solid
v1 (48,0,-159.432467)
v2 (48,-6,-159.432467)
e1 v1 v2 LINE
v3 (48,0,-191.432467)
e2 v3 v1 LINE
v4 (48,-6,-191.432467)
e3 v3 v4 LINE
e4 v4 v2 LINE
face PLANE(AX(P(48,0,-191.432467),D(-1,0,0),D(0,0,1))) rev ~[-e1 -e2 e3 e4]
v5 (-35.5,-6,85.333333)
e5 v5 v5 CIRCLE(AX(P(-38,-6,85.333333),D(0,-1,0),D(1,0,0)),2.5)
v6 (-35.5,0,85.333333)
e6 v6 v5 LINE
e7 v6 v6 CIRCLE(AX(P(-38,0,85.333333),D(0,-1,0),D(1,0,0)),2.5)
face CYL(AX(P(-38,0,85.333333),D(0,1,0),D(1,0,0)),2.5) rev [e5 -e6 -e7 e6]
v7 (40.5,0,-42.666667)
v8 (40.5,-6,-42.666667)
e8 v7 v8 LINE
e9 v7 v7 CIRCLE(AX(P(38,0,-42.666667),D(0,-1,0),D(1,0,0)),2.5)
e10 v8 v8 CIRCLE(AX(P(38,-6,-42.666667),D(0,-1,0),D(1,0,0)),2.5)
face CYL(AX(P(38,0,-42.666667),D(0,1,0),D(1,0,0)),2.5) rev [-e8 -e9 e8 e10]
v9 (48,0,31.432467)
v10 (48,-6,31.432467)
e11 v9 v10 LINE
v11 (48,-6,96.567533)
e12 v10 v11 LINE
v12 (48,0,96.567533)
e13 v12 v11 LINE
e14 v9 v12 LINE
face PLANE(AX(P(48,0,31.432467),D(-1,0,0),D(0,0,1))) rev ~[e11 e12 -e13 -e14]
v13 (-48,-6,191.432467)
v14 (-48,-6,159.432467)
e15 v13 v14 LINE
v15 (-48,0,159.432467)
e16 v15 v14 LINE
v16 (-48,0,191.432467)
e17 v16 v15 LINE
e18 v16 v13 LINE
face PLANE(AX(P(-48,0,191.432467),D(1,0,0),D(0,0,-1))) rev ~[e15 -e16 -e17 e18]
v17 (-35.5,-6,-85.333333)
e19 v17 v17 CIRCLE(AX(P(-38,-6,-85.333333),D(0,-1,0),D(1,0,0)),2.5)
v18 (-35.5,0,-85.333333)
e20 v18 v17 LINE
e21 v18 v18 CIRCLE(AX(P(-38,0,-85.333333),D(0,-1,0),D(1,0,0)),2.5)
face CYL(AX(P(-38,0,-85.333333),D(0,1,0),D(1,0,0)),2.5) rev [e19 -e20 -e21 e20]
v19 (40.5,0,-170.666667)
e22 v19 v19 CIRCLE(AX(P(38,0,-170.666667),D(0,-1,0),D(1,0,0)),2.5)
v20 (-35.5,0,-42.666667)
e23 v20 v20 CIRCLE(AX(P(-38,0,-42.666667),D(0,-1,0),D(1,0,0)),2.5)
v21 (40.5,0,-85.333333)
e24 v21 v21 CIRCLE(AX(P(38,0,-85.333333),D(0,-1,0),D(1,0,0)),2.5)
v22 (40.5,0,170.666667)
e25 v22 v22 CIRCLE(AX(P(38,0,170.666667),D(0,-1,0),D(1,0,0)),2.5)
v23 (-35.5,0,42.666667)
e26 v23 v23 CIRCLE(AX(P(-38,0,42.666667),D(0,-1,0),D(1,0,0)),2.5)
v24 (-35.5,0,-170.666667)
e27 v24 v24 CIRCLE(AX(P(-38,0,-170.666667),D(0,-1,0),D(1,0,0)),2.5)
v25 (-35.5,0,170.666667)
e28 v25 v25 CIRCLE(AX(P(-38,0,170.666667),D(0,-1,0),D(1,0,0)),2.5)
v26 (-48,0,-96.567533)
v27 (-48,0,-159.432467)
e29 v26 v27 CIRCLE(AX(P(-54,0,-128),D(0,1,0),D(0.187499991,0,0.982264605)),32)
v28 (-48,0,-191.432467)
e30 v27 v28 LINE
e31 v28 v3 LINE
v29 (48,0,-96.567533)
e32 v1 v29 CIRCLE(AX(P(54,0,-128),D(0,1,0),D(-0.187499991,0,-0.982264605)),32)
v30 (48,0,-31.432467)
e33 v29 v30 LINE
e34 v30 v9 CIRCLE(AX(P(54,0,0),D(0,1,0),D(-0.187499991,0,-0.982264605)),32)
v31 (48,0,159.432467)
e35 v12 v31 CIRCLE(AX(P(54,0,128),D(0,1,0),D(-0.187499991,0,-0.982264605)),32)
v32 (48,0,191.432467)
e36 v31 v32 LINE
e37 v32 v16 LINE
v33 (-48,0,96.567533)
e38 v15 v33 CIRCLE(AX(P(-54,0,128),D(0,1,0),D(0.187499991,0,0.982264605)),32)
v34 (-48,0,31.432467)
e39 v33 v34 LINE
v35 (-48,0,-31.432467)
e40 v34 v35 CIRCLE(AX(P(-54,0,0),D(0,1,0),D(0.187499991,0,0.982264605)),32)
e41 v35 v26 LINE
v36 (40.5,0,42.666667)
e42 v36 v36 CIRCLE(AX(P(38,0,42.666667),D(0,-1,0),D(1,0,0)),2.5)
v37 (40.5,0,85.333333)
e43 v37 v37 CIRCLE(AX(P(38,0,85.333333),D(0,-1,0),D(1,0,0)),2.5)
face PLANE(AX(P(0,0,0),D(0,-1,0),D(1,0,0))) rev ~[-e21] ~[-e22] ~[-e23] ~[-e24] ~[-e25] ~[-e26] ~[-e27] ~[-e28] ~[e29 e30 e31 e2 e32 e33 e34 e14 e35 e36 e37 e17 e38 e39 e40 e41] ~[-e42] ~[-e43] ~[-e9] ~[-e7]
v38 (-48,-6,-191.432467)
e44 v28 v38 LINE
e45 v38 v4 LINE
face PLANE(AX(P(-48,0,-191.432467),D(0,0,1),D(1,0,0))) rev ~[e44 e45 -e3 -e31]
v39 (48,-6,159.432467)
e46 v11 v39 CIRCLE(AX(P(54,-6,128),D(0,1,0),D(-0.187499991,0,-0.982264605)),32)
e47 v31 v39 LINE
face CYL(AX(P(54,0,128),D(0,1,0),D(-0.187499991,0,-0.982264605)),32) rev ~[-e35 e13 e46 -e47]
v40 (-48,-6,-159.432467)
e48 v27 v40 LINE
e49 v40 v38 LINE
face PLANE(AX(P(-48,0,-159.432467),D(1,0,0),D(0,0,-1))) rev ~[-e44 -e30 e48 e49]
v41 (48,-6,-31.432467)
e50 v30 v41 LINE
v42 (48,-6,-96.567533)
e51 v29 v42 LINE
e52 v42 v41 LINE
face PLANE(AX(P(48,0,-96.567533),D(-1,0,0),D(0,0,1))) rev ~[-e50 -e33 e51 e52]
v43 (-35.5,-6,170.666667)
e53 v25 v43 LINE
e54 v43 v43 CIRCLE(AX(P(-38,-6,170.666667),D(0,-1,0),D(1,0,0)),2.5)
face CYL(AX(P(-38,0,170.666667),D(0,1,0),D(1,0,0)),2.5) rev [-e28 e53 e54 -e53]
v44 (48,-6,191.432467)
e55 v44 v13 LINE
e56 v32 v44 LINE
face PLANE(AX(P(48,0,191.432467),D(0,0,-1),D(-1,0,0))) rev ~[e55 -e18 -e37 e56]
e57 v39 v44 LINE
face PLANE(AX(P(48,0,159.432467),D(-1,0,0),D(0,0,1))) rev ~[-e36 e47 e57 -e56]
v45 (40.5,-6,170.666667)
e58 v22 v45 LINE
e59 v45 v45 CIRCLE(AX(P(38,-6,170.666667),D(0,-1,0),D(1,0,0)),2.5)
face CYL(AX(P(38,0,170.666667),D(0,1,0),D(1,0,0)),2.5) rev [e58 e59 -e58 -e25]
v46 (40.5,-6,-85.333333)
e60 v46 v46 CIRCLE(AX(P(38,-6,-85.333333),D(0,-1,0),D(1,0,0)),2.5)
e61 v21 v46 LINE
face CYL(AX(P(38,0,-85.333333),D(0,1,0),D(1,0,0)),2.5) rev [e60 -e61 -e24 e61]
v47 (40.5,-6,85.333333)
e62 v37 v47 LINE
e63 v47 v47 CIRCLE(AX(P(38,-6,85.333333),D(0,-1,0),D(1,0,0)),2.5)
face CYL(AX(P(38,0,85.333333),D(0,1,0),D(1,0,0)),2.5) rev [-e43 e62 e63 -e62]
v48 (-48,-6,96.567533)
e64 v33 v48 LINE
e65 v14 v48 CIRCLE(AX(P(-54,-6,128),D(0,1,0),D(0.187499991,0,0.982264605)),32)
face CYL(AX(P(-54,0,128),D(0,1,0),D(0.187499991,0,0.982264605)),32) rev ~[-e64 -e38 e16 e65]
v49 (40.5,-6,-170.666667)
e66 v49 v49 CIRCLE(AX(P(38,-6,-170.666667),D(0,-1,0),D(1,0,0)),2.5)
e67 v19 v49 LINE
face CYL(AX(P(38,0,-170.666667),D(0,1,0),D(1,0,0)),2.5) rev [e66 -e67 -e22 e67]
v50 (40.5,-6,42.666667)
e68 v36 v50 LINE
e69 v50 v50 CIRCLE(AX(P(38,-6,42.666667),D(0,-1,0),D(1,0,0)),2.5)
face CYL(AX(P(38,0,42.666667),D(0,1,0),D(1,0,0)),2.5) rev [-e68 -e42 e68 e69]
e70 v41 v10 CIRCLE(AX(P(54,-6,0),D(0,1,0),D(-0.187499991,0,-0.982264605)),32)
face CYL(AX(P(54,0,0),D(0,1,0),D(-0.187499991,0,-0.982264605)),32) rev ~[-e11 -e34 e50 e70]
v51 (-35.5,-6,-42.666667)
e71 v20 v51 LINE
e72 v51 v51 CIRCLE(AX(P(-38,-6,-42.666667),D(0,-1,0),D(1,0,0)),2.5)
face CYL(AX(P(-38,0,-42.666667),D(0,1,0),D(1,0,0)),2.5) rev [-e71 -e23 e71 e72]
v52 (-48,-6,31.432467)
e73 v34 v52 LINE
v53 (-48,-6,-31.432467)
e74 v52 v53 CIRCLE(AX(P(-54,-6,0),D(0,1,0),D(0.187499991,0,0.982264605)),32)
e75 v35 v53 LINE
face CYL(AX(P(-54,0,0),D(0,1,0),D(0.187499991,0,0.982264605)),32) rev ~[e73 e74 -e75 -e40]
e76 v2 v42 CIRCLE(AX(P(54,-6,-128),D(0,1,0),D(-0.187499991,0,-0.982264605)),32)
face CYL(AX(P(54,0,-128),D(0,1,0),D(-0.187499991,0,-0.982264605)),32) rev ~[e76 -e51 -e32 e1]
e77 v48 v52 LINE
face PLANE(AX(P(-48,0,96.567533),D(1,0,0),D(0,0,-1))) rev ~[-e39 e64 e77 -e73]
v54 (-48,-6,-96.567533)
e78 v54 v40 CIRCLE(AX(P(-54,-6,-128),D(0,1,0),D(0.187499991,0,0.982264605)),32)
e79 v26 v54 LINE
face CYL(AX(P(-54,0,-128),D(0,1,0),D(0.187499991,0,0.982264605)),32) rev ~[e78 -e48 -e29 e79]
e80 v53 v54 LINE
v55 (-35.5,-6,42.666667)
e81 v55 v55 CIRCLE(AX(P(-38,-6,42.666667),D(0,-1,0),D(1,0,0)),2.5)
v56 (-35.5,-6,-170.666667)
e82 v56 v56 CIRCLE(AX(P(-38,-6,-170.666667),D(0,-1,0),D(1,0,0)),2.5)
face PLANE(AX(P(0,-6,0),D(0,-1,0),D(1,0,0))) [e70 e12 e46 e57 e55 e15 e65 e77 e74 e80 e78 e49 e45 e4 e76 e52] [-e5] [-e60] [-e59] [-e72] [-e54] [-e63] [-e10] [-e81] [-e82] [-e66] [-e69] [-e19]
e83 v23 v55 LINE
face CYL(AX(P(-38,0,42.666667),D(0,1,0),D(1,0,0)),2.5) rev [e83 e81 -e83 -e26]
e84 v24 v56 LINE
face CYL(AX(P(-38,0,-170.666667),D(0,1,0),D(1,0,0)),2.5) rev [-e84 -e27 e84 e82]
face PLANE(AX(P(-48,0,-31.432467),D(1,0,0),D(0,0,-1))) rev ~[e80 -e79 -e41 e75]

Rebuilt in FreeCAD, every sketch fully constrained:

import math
import FreeCAD as App
import Part
import Sketcher

V = App.Vector

doc = App.newDocument("Part")
body = doc.addObject("PartDesign::Body", "Body")

# Sketch on XZ plane
sketch1 = body.newObject("Sketcher::SketchObject", "Sketch")
sketch1.AttachmentSupport = (doc.getObject("XZ_Plane"), [""])
sketch1.MapMode = "FlatFace"
sketch1.addGeometry(Part.ArcOfCircle(Part.Circle(V(-54, -128, 0), V(0, 0, 1), 32), math.radians(-79), math.radians(79)), False)
sketch1.addGeometry(Part.LineSegment(V(-48, -159.4, 0), V(-48, -191.4, 0)), False)
sketch1.addGeometry(Part.LineSegment(V(-48, -191.4, 0), V(48, -191.4, 0)), False)
sketch1.addGeometry(Part.LineSegment(V(48, -191.4, 0), V(48, -159.4, 0)), False)
sketch1.addGeometry(Part.ArcOfCircle(Part.Circle(V(54, -128, 0), V(0, 0, 1), 32), math.radians(101), math.radians(259)), False)
sketch1.addGeometry(Part.LineSegment(V(48, -96.6, 0), V(48, -31.4, 0)), False)
sketch1.addGeometry(Part.ArcOfCircle(Part.Circle(V(54, 0, 0), V(0, 0, 1), 32), math.radians(101), math.radians(259)), False)
sketch1.addGeometry(Part.LineSegment(V(48, 31.4, 0), V(48, 96.6, 0)), False)
sketch1.addGeometry(Part.ArcOfCircle(Part.Circle(V(54, 128, 0), V(0, 0, 1), 32), math.radians(101), math.radians(259)), False)
sketch1.addGeometry(Part.LineSegment(V(48, 159.4, 0), V(48, 191.4, 0)), False)
sketch1.addGeometry(Part.LineSegment(V(48, 191.4, 0), V(-48, 191.4, 0)), False)
sketch1.addGeometry(Part.LineSegment(V(-48, 191.4, 0), V(-48, 159.4, 0)), False)
sketch1.addGeometry(Part.ArcOfCircle(Part.Circle(V(-54, 128, 0), V(0, 0, 1), 32), math.radians(-79), math.radians(79)), False)
sketch1.addGeometry(Part.LineSegment(V(-48, 96.6, 0), V(-48, 31.4, 0)), False)
sketch1.addGeometry(Part.ArcOfCircle(Part.Circle(V(-54, 0, 0), V(0, 0, 1), 32), math.radians(-79), math.radians(79)), False)
sketch1.addGeometry(Part.LineSegment(V(-48, -31.4, 0), V(-48, -96.6, 0)), False)
sketch1.addGeometry(Part.Circle(V(-38, -170.7, 0), V(0, 0, 1), 2.5), False)
sketch1.addGeometry(Part.Circle(V(-38, -85.3, 0), V(0, 0, 1), 2.5), False)
sketch1.addGeometry(Part.Circle(V(-38, -42.7, 0), V(0, 0, 1), 2.5), False)
sketch1.addGeometry(Part.Circle(V(38, -170.7, 0), V(0, 0, 1), 2.5), False)
sketch1.addGeometry(Part.Circle(V(38, -85.3, 0), V(0, 0, 1), 2.5), False)
sketch1.addGeometry(Part.Circle(V(38, -42.7, 0), V(0, 0, 1), 2.5), False)
sketch1.addGeometry(Part.Circle(V(-38, 42.7, 0), V(0, 0, 1), 2.5), False)
sketch1.addGeometry(Part.Circle(V(-38, 85.3, 0), V(0, 0, 1), 2.5), False)
sketch1.addGeometry(Part.Circle(V(-38, 170.7, 0), V(0, 0, 1), 2.5), False)
sketch1.addGeometry(Part.Circle(V(38, 42.7, 0), V(0, 0, 1), 2.5), False)
sketch1.addGeometry(Part.Circle(V(38, 85.3, 0), V(0, 0, 1), 2.5), False)
sketch1.addGeometry(Part.Circle(V(38, 170.7, 0), V(0, 0, 1), 2.5), False)
sketch1.addConstraint(Sketcher.Constraint("Coincident", 0, 1, 1, 1))
sketch1.addConstraint(Sketcher.Constraint("Coincident", 1, 2, 2, 1))
sketch1.addConstraint(Sketcher.Constraint("Coincident", 2, 2, 3, 1))
sketch1.addConstraint(Sketcher.Constraint("Coincident", 3, 2, 4, 2))
sketch1.addConstraint(Sketcher.Constraint("Coincident", 4, 1, 5, 1))
sketch1.addConstraint(Sketcher.Constraint("Coincident", 5, 2, 6, 2))
sketch1.addConstraint(Sketcher.Constraint("Coincident", 6, 1, 7, 1))
sketch1.addConstraint(Sketcher.Constraint("Coincident", 7, 2, 8, 2))
sketch1.addConstraint(Sketcher.Constraint("Coincident", 8, 1, 9, 1))
sketch1.addConstraint(Sketcher.Constraint("Coincident", 9, 2, 10, 1))
sketch1.addConstraint(Sketcher.Constraint("Coincident", 10, 2, 11, 1))
sketch1.addConstraint(Sketcher.Constraint("Coincident", 11, 2, 12, 2))
sketch1.addConstraint(Sketcher.Constraint("Coincident", 12, 1, 13, 1))
sketch1.addConstraint(Sketcher.Constraint("Coincident", 13, 2, 14, 2))
sketch1.addConstraint(Sketcher.Constraint("Coincident", 14, 1, 15, 1))
sketch1.addConstraint(Sketcher.Constraint("Coincident", 15, 2, 0, 2))
sketch1.addConstraint(Sketcher.Constraint("Vertical", 1))
sketch1.addConstraint(Sketcher.Constraint("Horizontal", 2))
sketch1.addConstraint(Sketcher.Constraint("Vertical", 3))
sketch1.addConstraint(Sketcher.Constraint("Vertical", 5))
sketch1.addConstraint(Sketcher.Constraint("Vertical", 7))
sketch1.addConstraint(Sketcher.Constraint("Vertical", 9))
sketch1.addConstraint(Sketcher.Constraint("Horizontal", 10))
sketch1.addConstraint(Sketcher.Constraint("Vertical", 11))
sketch1.addConstraint(Sketcher.Constraint("Vertical", 13))
sketch1.addConstraint(Sketcher.Constraint("Vertical", 15))
sketch1.addConstraint(Sketcher.Constraint("Equal", 0, 4))
sketch1.addConstraint(Sketcher.Constraint("Equal", 4, 6))
sketch1.addConstraint(Sketcher.Constraint("Equal", 6, 8))
sketch1.addConstraint(Sketcher.Constraint("Equal", 8, 12))
sketch1.addConstraint(Sketcher.Constraint("Equal", 12, 14))
sketch1.addConstraint(Sketcher.Constraint("Equal", 16, 17))
sketch1.addConstraint(Sketcher.Constraint("Equal", 17, 18))
sketch1.addConstraint(Sketcher.Constraint("Equal", 18, 19))
sketch1.addConstraint(Sketcher.Constraint("Equal", 19, 20))
sketch1.addConstraint(Sketcher.Constraint("Equal", 20, 21))
sketch1.addConstraint(Sketcher.Constraint("Equal", 21, 22))
sketch1.addConstraint(Sketcher.Constraint("Equal", 22, 23))
sketch1.addConstraint(Sketcher.Constraint("Equal", 23, 24))
sketch1.addConstraint(Sketcher.Constraint("Equal", 24, 25))
sketch1.addConstraint(Sketcher.Constraint("Equal", 25, 26))
sketch1.addConstraint(Sketcher.Constraint("Equal", 26, 27))
sketch1.addConstraint(Sketcher.Constraint("Symmetric", 0, 3, 8, 3, -1, 1))
sketch1.addConstraint(Sketcher.Constraint("Symmetric", 4, 3, 12, 3, -1, 1))
sketch1.addConstraint(Sketcher.Constraint("Symmetric", 6, 3, 14, 3, -1, 1))
sketch1.addConstraint(Sketcher.Constraint("Symmetric", 21, 3, 22, 3, -1, 1))
sketch1.addConstraint(Sketcher.Constraint("Symmetric", 20, 3, 23, 3, -1, 1))
sketch1.addConstraint(Sketcher.Constraint("Symmetric", 19, 3, 24, 3, -1, 1))
sketch1.addConstraint(Sketcher.Constraint("Symmetric", 18, 3, 25, 3, -1, 1))
sketch1.addConstraint(Sketcher.Constraint("Symmetric", 17, 3, 26, 3, -1, 1))
sketch1.addConstraint(Sketcher.Constraint("Symmetric", 16, 3, 27, 3, -1, 1))
sketch1.addConstraint(Sketcher.Constraint("Symmetric", 1, 2, 9, 2, -1, 1))
sketch1.addConstraint(Sketcher.Constraint("Symmetric", 0, 3, 4, 3, -2))
sketch1.addConstraint(Sketcher.Constraint("Symmetric", 16, 3, 19, 3, -2))
sketch1.addConstraint(Sketcher.Constraint("Symmetric", 17, 3, 20, 3, -2))
sketch1.addConstraint(Sketcher.Constraint("Symmetric", 18, 3, 21, 3, -2))
sketch1.addConstraint(Sketcher.Constraint("Symmetric", 6, 1, 13, 2, -2))
sketch1.addConstraint(Sketcher.Constraint("Horizontal", 0, 1, 3, 2))
sketch1.addConstraint(Sketcher.Constraint("Horizontal", 8, 1, 11, 2))
sketch1.addConstraint(Sketcher.Constraint("Horizontal", 5, 2, 14, 1))
sketch1.addConstraint(Sketcher.Constraint("Vertical", 4, 3, 6, 3))
sketch1.addConstraint(Sketcher.Constraint("Vertical", 16, 3, 17, 3))
sketch1.addConstraint(Sketcher.Constraint("Vertical", 17, 3, 18, 3))
sketch1.addConstraint(Sketcher.Constraint("Vertical", 3, 2, 4, 1))
sketch1.addConstraint(Sketcher.Constraint("Vertical", 5, 2, 6, 1))
sketch1.addConstraint(Sketcher.Constraint("Diameter", 16, 5.0))
sketch1.addConstraint(Sketcher.Constraint("Radius", 0, 32.0))
sketch1.addConstraint(Sketcher.Constraint("DistanceX", 2, 1, 2, 2, 96.0))
sketch1.addConstraint(Sketcher.Constraint("DistanceY", 1, 2, 1, 1, 32.0))
sketch1.addConstraint(Sketcher.Constraint("DistanceX", 0, 3, -1, 1, 54.0))
sketch1.addConstraint(Sketcher.Constraint("DistanceY", 0, 3, -1, 1, 128.0))
sketch1.addConstraint(Sketcher.Constraint("DistanceX", 16, 3, -1, 1, 38.0))
sketch1.addConstraint(Sketcher.Constraint("DistanceY", 19, 3, 18, 3, 128.0))
sketch1.addConstraint(Sketcher.Constraint("DistanceY", 16, 3, 0, 1, 11.2342))
sketch1.addConstraint(Sketcher.Constraint("DistanceY", 4, 1, 20, 3, 11.2342))
pad1 = body.newObject("PartDesign::Pad", "Pad")
pad1.Profile = sketch1
pad1.Length = 6

doc.recompute()
